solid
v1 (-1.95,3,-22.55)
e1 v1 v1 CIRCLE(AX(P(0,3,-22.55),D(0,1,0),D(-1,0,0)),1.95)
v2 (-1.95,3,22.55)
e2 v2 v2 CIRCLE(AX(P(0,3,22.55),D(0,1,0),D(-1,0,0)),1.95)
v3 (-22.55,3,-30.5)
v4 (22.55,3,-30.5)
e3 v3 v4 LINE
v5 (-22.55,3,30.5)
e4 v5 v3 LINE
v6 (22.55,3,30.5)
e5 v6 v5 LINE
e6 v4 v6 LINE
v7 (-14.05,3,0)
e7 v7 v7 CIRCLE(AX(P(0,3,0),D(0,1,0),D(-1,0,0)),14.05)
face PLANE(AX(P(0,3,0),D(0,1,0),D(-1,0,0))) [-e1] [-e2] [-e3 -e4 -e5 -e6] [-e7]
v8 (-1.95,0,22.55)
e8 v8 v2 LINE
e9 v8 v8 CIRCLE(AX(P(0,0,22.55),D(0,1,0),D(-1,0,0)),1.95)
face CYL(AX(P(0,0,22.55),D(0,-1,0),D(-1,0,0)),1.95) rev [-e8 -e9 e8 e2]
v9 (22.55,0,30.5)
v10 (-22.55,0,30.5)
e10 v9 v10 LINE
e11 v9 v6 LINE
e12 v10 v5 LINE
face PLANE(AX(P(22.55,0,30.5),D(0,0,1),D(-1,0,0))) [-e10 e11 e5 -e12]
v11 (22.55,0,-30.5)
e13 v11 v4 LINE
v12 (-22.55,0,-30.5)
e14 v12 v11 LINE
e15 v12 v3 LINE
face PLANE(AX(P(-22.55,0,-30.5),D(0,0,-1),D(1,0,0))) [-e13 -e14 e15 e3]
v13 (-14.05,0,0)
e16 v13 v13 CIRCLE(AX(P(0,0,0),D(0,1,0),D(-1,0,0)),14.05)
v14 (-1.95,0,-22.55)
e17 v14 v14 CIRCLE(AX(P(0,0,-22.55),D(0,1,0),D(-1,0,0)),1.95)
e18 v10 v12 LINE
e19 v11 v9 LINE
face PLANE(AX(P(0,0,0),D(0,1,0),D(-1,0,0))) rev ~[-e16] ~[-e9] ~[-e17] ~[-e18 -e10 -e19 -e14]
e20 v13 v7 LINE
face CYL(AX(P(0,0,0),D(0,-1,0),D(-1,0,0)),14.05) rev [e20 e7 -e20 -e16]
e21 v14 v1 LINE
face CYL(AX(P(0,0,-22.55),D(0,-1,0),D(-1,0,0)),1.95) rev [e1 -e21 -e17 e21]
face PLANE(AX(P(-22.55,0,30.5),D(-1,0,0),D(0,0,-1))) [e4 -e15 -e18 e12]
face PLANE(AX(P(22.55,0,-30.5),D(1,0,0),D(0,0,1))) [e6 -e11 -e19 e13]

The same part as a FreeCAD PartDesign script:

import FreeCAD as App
import Part
import Sketcher
from FreeCAD import Vector

doc = App.newDocument("Part")
body = doc.addObject("PartDesign::Body", "Body")

sketch1 = doc.addObject("Sketcher::SketchObject", "Sketch")
body.addObject(sketch1)
sketch1.AttachmentSupport = (doc.XZ_Plane, [""])
sketch1.MapMode = "FlatFace"
sketch1.addGeometry([
    Part.LineSegment(Vector(-22.6, 30.5, 0), Vector(22.6, 30.5, 0)),
    Part.LineSegment(Vector(22.6, 30.5, 0), Vector(22.6, -30.5, 0)),
    Part.LineSegment(Vector(22.6, -30.5, 0), Vector(-22.6, -30.5, 0)),
    Part.LineSegment(Vector(-22.6, -30.5, 0), Vector(-22.6, 30.5, 0)),
    Part.Circle(Vector(0, -22.6, 0), Vector(0, 0, 1), 1.9),
    Part.Circle(Vector(0, 0, 0), Vector(0, 0, 1), 14.1),
    Part.Circle(Vector(0, 22.6, 0), Vector(0, 0, 1), 1.9),
], False)
sketch1.addConstraint([
    Sketcher.Constraint("Coincident", 0, 2, 1, 1),
    Sketcher.Constraint("Coincident", 1, 2, 2, 1),
    Sketcher.Constraint("Coincident", 2, 2, 3, 1),
    Sketcher.Constraint("Coincident", 3, 2, 0, 1),
    Sketcher.Constraint("Horizontal", 0),
    Sketcher.Constraint("Vertical", 1),
    Sketcher.Constraint("Horizontal", 2),
    Sketcher.Constraint("Vertical", 3),
    Sketcher.Constraint("Coincident", 5, 3, -1, 1),
    Sketcher.Constraint("Equal", 4, 6),
    Sketcher.Constraint("Symmetric", 4, 3, 6, 3, -1, 1),
    Sketcher.Constraint("Symmetric", 0, 2, 2, 2, -1, 1),
    Sketcher.Constraint("PointOnObject", 4, 3, -2),
    Sketcher.Constraint("Diameter", 4, 3.9),
    Sketcher.Constraint("Diameter", 5, 28.1),
    Sketcher.Constraint("DistanceY", 1, 2, 1, 1, 61.0),
    Sketcher.Constraint("DistanceY", 4, 3, -1, 1, 22.55),
    Sketcher.Constraint("DistanceX", -1, 1, 0, 2, 22.55),
])
pad1 = doc.addObject("PartDesign::Pad", "Pad")
body.addObject(pad1)
pad1.Profile = sketch1
pad1.Length = 3
pad1.Reversed = True

doc.recompute()
